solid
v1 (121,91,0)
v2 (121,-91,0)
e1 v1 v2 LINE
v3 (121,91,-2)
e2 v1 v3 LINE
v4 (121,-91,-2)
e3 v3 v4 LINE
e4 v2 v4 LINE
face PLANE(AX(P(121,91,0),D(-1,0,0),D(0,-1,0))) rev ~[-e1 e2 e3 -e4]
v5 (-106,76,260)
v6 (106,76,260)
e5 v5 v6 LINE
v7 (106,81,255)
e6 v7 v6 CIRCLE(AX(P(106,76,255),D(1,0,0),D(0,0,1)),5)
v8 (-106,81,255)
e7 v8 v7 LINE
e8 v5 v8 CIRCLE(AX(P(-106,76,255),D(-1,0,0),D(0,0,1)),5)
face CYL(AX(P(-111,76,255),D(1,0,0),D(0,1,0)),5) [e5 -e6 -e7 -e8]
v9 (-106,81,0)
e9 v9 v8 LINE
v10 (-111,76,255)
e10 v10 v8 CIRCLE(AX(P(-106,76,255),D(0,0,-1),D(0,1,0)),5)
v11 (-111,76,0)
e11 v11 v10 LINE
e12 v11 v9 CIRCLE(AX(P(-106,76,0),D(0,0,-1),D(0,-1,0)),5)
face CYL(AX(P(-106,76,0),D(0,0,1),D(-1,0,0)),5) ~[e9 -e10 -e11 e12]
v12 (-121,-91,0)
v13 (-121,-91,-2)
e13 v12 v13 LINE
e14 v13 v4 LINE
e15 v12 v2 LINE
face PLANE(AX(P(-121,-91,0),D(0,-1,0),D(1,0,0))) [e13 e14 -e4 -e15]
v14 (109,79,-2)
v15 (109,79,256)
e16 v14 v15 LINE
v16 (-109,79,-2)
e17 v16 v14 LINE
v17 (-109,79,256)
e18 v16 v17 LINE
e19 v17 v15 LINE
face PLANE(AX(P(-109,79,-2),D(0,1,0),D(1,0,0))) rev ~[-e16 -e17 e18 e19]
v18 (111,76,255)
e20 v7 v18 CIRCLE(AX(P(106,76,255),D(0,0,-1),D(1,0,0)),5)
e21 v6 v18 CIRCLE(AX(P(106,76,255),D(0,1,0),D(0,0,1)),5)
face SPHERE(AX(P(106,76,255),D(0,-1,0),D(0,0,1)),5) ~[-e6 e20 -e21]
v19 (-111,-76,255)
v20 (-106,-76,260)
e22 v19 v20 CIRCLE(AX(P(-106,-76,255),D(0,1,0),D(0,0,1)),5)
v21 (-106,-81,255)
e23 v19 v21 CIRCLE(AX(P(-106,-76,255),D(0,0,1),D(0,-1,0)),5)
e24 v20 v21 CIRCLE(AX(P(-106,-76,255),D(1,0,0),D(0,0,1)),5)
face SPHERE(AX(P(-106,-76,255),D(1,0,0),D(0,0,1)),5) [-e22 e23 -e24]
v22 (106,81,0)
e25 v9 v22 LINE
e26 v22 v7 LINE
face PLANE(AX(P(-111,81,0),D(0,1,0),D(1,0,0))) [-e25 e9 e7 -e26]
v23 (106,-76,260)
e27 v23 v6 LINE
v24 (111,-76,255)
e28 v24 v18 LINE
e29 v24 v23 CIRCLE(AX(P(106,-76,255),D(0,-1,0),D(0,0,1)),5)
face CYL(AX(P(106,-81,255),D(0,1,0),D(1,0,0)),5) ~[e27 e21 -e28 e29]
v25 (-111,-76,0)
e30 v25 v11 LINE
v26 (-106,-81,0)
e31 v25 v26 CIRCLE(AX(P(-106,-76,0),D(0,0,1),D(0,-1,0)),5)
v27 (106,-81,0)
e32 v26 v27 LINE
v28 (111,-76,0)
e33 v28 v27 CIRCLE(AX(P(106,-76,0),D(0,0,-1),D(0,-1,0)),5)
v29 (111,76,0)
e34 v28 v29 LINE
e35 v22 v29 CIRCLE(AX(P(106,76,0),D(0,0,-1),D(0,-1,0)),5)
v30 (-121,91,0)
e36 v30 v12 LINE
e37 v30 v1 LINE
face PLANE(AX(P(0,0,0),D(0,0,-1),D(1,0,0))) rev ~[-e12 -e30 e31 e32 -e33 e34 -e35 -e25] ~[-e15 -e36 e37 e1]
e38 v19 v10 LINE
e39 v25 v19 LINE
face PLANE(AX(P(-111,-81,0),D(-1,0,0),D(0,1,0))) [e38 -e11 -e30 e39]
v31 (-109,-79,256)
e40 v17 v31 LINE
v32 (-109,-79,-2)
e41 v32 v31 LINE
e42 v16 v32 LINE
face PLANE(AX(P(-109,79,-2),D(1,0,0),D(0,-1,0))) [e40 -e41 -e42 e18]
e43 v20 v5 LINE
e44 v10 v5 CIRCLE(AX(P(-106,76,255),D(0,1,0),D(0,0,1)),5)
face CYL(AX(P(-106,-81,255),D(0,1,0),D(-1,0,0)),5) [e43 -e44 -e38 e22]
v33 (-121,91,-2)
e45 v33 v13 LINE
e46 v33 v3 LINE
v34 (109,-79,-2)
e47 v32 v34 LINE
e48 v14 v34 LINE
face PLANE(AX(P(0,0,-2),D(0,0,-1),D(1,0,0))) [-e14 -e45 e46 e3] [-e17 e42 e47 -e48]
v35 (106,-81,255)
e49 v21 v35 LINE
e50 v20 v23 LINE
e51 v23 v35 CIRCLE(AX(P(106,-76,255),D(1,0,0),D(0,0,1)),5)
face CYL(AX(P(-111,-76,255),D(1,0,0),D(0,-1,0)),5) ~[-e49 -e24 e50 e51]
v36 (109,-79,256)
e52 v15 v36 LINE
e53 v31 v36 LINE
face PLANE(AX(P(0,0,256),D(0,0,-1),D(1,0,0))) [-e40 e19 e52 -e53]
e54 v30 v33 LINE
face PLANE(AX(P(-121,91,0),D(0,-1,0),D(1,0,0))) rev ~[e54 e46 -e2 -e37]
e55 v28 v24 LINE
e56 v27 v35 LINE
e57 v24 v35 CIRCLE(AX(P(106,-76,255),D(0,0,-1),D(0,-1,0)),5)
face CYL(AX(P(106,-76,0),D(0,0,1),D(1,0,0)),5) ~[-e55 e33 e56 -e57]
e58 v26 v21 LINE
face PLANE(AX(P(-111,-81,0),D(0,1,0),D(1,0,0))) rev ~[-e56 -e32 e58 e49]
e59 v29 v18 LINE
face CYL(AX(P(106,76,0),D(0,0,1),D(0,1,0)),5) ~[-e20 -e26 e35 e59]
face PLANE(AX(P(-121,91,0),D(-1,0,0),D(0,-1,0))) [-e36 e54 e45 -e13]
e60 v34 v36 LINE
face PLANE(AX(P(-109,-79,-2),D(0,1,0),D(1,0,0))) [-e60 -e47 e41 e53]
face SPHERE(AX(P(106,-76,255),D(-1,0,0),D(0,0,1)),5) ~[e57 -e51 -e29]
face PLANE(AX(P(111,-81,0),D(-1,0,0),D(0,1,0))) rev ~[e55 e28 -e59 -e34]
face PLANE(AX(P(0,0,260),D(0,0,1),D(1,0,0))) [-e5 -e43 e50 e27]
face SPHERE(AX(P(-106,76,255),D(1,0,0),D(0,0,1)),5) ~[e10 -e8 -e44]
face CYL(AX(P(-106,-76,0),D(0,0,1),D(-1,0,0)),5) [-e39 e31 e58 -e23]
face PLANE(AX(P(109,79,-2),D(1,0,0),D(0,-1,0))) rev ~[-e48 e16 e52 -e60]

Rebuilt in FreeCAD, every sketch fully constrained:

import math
import FreeCAD as App
import Part
import Sketcher
from FreeCAD import Vector


def edges_at(feature, points):
    """Names of the edges that pass closest to the given points."""
    edges = feature.Shape.Edges
    near = lambda p: min(range(len(edges)), key=lambda i: edges[i].distToShape(Part.Vertex(*p))[0])
    return sorted({f"Edge{near(p) + 1}" for p in points})

doc = App.newDocument("Part")
body = doc.addObject("PartDesign::Body", "Body")

# Sketch on XY plane
sketch1 = doc.addObject("Sketcher::SketchObject", "Sketch")
body.addObject(sketch1)
sketch1.AttachmentSupport = (doc.XY_Plane, [""])
sketch1.MapMode = "FlatFace"
sketch1.addGeometry(Part.LineSegment(Vector(-111, 81, 0), Vector(-111, -81, 0)), False)
sketch1.addGeometry(Part.LineSegment(Vector(-111, -81, 0), Vector(111, -81, 0)), False)
sketch1.addGeometry(Part.LineSegment(Vector(111, -81, 0), Vector(111, 81, 0)), False)
sketch1.addGeometry(Part.LineSegment(Vector(111, 81, 0), Vector(-111, 81, 0)), False)
sketch1.addConstraint(Sketcher.Constraint("Coincident", 0, 2, 1, 1))
sketch1.addConstraint(Sketcher.Constraint("Coincident", 1, 2, 2, 1))
sketch1.addConstraint(Sketcher.Constraint("Coincident", 2, 2, 3, 1))
sketch1.addConstraint(Sketcher.Constraint("Coincident", 3, 2, 0, 1))
sketch1.addConstraint(Sketcher.Constraint("Vertical", 0))
sketch1.addConstraint(Sketcher.Constraint("Horizontal", 1))
sketch1.addConstraint(Sketcher.Constraint("Vertical", 2))
sketch1.addConstraint(Sketcher.Constraint("Horizontal", 3))
sketch1.addConstraint(Sketcher.Constraint("Symmetric", 0, 2, 2, 2, -1, 1))
sketch1.addConstraint(Sketcher.Constraint("DistanceX", 1, 1, 1, 2, 222.0))
sketch1.addConstraint(Sketcher.Constraint("DistanceY", 0, 2, 0, 1, 162.0))
pad1 = doc.addObject("PartDesign::Pad", "Pad")
body.addObject(pad1)
pad1.Profile = sketch1
pad1.Length = 260

# Sketch on XY plane
sketch2 = doc.addObject("Sketcher::SketchObject", "Sketch001")
body.addObject(sketch2)
sketch2.AttachmentSupport = (doc.XY_Plane, [""])
sketch2.MapMode = "FlatFace"
sketch2.addGeometry(Part.LineSegment(Vector(-121, -91, 0), Vector(-121, 91, 0)), False)
sketch2.addGeometry(Part.LineSegment(Vector(-121, 91, 0), Vector(121, 91, 0)), False)
sketch2.addGeometry(Part.LineSegment(Vector(121, 91, 0), Vector(121, -91, 0)), False)
sketch2.addGeometry(Part.LineSegment(Vector(121, -91, 0), Vector(-121, -91, 0)), False)
sketch2.addConstraint(Sketcher.Constraint("Coincident", 0, 2, 1, 1))
sketch2.addConstraint(Sketcher.Constraint("Coincident", 1, 2, 2, 1))
sketch2.addConstraint(Sketcher.Constraint("Coincident", 2, 2, 3, 1))
sketch2.addConstraint(Sketcher.Constraint("Coincident", 3, 2, 0, 1))
sketch2.addConstraint(Sketcher.Constraint("Vertical", 0))
sketch2.addConstraint(Sketcher.Constraint("Horizontal", 1))
sketch2.addConstraint(Sketcher.Constraint("Vertical", 2))
sketch2.addConstraint(Sketcher.Constraint("Horizontal", 3))
sketch2.addConstraint(Sketcher.Constraint("Symmetric", 0, 2, 2, 2, -1, 1))
sketch2.addConstraint(Sketcher.Constraint("DistanceX", 1, 1, 1, 2, 242.0))
sketch2.addConstraint(Sketcher.Constraint("DistanceY", 0, 1, 0, 2, 182.0))
pad2 = doc.addObject("PartDesign::Pad", "Pad001")
body.addObject(pad2)
pad2.Profile = sketch2
pad2.Length = 2
pad2.Reversed = True
doc.recompute()

fillet = doc.addObject("PartDesign::Fillet", "Fillet")
body.addObject(fillet)
fillet.Base = (pad2, edges_at(pad2, [
    (0, -81, 260),
    (111, 0, 260),
    (0, 81, 260),
    (-111, 0, 260),
    (111, -81, 130),
    (-111, -81, 130),
    (111, 81, 130),
    (-111, 81, 130),
]))
fillet.Radius = 5

# Sketch on XY plane
sketch3 = doc.addObject("Sketcher::SketchObject", "Sketch002")
body.addObject(sketch3)
sketch3.AttachmentSupport = (doc.XY_Plane, [""])
sketch3.MapMode = "FlatFace"
sketch3.AttachmentOffset = App.Placement(Vector(0, 0, -2), App.Rotation())
sketch3.addGeometry(Part.LineSegment(Vector(-109, -79, 0), Vector(-109, 79, 0)), False)
sketch3.addGeometry(Part.LineSegment(Vector(-109, 79, 0), Vector(109, 79, 0)), False)
sketch3.addGeometry(Part.LineSegment(Vector(109, 79, 0), Vector(109, -79, 0)), False)
sketch3.addGeometry(Part.LineSegment(Vector(109, -79, 0), Vector(-109, -79, 0)), False)
sketch3.addConstraint(Sketcher.Constraint("Coincident", 0, 2, 1, 1))
sketch3.addConstraint(Sketcher.Constraint("Coincident", 1, 2, 2, 1))
sketch3.addConstraint(Sketcher.Constraint("Coincident", 2, 2, 3, 1))
sketch3.addConstraint(Sketcher.Constraint("Coincident", 3, 2, 0, 1))
sketch3.addConstraint(Sketcher.Constraint("Vertical", 0))
sketch3.addConstraint(Sketcher.Constraint("Horizontal", 1))
sketch3.addConstraint(Sketcher.Constraint("Vertical", 2))
sketch3.addConstraint(Sketcher.Constraint("Horizontal", 3))
sketch3.addConstraint(Sketcher.Constraint("Symmetric", 0, 2, 2, 2, -1, 1))
sketch3.addConstraint(Sketcher.Constraint("DistanceX", 1, 1, 1, 2, 218.0))
sketch3.addConstraint(Sketcher.Constraint("DistanceY", 0, 1, 0, 2, 158.0))
pocket1 = doc.addObject("PartDesign::Pocket", "Pocket")
body.addObject(pocket1)
pocket1.Profile = sketch3
pocket1.Length = 258
pocket1.Reversed = True
body2 = doc.addObject("PartDesign::Body", "Body001")

# Sketch on YZ plane
sketch4 = doc.addObject("Sketcher::SketchObject", "Sketch003")
body2.addObject(sketch4)
sketch4.AttachmentSupport = (doc.getObject("YZ_Plane001"), [""])
sketch4.MapMode = "FlatFace"
sketch4.addGeometry(Part.LineSegment(Vector(-101, 20.2, 0), Vector(-81, 20.2, 0)), False)
sketch4.addGeometry(Part.LineSegment(Vector(-81, 20.2, 0), Vector(-81, 40.2, 0)), False)
sketch4.addGeometry(Part.LineSegment(Vector(-81, 40.2, 0), Vector(-101, 40.2, 0)), False)
sketch4.addGeometry(Part.ArcOfCircle(Part.Circle(Vector(-101, 30.2, 0), Vector(0, 0, 1), 10), math.radians(90), math.radians(270)), False)
sketch4.addGeometry(Part.Circle(Vector(-101, 30.2, 0), Vector(0, 0, 1), 4), False)
sketch4.addConstraint(Sketcher.Constraint("Coincident", 0, 2, 1, 1))
sketch4.addConstraint(Sketcher.Constraint("Coincident", 1, 2, 2, 1))
sketch4.addConstraint(Sketcher.Constraint("Tangent", 2, 2, 3, 1))
sketch4.addConstraint(Sketcher.Constraint("Tangent", 3, 2, 0, 1))
sketch4.addConstraint(Sketcher.Constraint("Horizontal", 0))
sketch4.addConstraint(Sketcher.Constraint("Vertical", 1))
sketch4.addConstraint(Sketcher.Constraint("Horizontal", 2))
sketch4.addConstraint(Sketcher.Constraint("Coincident", 4, 3, 3, 3))
sketch4.addConstraint(Sketcher.Constraint("Equal", 2, 1))
sketch4.addConstraint(Sketcher.Constraint("Diameter", 4, 8.0))
sketch4.addConstraint(Sketcher.Constraint("Radius", 3, 10.0))
sketch4.addConstraint(Sketcher.Constraint("DistanceX", 3, 3, -1, 1, 101.0))
sketch4.addConstraint(Sketcher.Constraint("DistanceY", -1, 1, 3, 3, 30.151517))
pad3 = doc.addObject("PartDesign::Pad", "Pad002")
body2.addObject(pad3)
pad3.Profile = sketch4
pad3.Length = 2
body2.Visibility = False

doc.recompute()
